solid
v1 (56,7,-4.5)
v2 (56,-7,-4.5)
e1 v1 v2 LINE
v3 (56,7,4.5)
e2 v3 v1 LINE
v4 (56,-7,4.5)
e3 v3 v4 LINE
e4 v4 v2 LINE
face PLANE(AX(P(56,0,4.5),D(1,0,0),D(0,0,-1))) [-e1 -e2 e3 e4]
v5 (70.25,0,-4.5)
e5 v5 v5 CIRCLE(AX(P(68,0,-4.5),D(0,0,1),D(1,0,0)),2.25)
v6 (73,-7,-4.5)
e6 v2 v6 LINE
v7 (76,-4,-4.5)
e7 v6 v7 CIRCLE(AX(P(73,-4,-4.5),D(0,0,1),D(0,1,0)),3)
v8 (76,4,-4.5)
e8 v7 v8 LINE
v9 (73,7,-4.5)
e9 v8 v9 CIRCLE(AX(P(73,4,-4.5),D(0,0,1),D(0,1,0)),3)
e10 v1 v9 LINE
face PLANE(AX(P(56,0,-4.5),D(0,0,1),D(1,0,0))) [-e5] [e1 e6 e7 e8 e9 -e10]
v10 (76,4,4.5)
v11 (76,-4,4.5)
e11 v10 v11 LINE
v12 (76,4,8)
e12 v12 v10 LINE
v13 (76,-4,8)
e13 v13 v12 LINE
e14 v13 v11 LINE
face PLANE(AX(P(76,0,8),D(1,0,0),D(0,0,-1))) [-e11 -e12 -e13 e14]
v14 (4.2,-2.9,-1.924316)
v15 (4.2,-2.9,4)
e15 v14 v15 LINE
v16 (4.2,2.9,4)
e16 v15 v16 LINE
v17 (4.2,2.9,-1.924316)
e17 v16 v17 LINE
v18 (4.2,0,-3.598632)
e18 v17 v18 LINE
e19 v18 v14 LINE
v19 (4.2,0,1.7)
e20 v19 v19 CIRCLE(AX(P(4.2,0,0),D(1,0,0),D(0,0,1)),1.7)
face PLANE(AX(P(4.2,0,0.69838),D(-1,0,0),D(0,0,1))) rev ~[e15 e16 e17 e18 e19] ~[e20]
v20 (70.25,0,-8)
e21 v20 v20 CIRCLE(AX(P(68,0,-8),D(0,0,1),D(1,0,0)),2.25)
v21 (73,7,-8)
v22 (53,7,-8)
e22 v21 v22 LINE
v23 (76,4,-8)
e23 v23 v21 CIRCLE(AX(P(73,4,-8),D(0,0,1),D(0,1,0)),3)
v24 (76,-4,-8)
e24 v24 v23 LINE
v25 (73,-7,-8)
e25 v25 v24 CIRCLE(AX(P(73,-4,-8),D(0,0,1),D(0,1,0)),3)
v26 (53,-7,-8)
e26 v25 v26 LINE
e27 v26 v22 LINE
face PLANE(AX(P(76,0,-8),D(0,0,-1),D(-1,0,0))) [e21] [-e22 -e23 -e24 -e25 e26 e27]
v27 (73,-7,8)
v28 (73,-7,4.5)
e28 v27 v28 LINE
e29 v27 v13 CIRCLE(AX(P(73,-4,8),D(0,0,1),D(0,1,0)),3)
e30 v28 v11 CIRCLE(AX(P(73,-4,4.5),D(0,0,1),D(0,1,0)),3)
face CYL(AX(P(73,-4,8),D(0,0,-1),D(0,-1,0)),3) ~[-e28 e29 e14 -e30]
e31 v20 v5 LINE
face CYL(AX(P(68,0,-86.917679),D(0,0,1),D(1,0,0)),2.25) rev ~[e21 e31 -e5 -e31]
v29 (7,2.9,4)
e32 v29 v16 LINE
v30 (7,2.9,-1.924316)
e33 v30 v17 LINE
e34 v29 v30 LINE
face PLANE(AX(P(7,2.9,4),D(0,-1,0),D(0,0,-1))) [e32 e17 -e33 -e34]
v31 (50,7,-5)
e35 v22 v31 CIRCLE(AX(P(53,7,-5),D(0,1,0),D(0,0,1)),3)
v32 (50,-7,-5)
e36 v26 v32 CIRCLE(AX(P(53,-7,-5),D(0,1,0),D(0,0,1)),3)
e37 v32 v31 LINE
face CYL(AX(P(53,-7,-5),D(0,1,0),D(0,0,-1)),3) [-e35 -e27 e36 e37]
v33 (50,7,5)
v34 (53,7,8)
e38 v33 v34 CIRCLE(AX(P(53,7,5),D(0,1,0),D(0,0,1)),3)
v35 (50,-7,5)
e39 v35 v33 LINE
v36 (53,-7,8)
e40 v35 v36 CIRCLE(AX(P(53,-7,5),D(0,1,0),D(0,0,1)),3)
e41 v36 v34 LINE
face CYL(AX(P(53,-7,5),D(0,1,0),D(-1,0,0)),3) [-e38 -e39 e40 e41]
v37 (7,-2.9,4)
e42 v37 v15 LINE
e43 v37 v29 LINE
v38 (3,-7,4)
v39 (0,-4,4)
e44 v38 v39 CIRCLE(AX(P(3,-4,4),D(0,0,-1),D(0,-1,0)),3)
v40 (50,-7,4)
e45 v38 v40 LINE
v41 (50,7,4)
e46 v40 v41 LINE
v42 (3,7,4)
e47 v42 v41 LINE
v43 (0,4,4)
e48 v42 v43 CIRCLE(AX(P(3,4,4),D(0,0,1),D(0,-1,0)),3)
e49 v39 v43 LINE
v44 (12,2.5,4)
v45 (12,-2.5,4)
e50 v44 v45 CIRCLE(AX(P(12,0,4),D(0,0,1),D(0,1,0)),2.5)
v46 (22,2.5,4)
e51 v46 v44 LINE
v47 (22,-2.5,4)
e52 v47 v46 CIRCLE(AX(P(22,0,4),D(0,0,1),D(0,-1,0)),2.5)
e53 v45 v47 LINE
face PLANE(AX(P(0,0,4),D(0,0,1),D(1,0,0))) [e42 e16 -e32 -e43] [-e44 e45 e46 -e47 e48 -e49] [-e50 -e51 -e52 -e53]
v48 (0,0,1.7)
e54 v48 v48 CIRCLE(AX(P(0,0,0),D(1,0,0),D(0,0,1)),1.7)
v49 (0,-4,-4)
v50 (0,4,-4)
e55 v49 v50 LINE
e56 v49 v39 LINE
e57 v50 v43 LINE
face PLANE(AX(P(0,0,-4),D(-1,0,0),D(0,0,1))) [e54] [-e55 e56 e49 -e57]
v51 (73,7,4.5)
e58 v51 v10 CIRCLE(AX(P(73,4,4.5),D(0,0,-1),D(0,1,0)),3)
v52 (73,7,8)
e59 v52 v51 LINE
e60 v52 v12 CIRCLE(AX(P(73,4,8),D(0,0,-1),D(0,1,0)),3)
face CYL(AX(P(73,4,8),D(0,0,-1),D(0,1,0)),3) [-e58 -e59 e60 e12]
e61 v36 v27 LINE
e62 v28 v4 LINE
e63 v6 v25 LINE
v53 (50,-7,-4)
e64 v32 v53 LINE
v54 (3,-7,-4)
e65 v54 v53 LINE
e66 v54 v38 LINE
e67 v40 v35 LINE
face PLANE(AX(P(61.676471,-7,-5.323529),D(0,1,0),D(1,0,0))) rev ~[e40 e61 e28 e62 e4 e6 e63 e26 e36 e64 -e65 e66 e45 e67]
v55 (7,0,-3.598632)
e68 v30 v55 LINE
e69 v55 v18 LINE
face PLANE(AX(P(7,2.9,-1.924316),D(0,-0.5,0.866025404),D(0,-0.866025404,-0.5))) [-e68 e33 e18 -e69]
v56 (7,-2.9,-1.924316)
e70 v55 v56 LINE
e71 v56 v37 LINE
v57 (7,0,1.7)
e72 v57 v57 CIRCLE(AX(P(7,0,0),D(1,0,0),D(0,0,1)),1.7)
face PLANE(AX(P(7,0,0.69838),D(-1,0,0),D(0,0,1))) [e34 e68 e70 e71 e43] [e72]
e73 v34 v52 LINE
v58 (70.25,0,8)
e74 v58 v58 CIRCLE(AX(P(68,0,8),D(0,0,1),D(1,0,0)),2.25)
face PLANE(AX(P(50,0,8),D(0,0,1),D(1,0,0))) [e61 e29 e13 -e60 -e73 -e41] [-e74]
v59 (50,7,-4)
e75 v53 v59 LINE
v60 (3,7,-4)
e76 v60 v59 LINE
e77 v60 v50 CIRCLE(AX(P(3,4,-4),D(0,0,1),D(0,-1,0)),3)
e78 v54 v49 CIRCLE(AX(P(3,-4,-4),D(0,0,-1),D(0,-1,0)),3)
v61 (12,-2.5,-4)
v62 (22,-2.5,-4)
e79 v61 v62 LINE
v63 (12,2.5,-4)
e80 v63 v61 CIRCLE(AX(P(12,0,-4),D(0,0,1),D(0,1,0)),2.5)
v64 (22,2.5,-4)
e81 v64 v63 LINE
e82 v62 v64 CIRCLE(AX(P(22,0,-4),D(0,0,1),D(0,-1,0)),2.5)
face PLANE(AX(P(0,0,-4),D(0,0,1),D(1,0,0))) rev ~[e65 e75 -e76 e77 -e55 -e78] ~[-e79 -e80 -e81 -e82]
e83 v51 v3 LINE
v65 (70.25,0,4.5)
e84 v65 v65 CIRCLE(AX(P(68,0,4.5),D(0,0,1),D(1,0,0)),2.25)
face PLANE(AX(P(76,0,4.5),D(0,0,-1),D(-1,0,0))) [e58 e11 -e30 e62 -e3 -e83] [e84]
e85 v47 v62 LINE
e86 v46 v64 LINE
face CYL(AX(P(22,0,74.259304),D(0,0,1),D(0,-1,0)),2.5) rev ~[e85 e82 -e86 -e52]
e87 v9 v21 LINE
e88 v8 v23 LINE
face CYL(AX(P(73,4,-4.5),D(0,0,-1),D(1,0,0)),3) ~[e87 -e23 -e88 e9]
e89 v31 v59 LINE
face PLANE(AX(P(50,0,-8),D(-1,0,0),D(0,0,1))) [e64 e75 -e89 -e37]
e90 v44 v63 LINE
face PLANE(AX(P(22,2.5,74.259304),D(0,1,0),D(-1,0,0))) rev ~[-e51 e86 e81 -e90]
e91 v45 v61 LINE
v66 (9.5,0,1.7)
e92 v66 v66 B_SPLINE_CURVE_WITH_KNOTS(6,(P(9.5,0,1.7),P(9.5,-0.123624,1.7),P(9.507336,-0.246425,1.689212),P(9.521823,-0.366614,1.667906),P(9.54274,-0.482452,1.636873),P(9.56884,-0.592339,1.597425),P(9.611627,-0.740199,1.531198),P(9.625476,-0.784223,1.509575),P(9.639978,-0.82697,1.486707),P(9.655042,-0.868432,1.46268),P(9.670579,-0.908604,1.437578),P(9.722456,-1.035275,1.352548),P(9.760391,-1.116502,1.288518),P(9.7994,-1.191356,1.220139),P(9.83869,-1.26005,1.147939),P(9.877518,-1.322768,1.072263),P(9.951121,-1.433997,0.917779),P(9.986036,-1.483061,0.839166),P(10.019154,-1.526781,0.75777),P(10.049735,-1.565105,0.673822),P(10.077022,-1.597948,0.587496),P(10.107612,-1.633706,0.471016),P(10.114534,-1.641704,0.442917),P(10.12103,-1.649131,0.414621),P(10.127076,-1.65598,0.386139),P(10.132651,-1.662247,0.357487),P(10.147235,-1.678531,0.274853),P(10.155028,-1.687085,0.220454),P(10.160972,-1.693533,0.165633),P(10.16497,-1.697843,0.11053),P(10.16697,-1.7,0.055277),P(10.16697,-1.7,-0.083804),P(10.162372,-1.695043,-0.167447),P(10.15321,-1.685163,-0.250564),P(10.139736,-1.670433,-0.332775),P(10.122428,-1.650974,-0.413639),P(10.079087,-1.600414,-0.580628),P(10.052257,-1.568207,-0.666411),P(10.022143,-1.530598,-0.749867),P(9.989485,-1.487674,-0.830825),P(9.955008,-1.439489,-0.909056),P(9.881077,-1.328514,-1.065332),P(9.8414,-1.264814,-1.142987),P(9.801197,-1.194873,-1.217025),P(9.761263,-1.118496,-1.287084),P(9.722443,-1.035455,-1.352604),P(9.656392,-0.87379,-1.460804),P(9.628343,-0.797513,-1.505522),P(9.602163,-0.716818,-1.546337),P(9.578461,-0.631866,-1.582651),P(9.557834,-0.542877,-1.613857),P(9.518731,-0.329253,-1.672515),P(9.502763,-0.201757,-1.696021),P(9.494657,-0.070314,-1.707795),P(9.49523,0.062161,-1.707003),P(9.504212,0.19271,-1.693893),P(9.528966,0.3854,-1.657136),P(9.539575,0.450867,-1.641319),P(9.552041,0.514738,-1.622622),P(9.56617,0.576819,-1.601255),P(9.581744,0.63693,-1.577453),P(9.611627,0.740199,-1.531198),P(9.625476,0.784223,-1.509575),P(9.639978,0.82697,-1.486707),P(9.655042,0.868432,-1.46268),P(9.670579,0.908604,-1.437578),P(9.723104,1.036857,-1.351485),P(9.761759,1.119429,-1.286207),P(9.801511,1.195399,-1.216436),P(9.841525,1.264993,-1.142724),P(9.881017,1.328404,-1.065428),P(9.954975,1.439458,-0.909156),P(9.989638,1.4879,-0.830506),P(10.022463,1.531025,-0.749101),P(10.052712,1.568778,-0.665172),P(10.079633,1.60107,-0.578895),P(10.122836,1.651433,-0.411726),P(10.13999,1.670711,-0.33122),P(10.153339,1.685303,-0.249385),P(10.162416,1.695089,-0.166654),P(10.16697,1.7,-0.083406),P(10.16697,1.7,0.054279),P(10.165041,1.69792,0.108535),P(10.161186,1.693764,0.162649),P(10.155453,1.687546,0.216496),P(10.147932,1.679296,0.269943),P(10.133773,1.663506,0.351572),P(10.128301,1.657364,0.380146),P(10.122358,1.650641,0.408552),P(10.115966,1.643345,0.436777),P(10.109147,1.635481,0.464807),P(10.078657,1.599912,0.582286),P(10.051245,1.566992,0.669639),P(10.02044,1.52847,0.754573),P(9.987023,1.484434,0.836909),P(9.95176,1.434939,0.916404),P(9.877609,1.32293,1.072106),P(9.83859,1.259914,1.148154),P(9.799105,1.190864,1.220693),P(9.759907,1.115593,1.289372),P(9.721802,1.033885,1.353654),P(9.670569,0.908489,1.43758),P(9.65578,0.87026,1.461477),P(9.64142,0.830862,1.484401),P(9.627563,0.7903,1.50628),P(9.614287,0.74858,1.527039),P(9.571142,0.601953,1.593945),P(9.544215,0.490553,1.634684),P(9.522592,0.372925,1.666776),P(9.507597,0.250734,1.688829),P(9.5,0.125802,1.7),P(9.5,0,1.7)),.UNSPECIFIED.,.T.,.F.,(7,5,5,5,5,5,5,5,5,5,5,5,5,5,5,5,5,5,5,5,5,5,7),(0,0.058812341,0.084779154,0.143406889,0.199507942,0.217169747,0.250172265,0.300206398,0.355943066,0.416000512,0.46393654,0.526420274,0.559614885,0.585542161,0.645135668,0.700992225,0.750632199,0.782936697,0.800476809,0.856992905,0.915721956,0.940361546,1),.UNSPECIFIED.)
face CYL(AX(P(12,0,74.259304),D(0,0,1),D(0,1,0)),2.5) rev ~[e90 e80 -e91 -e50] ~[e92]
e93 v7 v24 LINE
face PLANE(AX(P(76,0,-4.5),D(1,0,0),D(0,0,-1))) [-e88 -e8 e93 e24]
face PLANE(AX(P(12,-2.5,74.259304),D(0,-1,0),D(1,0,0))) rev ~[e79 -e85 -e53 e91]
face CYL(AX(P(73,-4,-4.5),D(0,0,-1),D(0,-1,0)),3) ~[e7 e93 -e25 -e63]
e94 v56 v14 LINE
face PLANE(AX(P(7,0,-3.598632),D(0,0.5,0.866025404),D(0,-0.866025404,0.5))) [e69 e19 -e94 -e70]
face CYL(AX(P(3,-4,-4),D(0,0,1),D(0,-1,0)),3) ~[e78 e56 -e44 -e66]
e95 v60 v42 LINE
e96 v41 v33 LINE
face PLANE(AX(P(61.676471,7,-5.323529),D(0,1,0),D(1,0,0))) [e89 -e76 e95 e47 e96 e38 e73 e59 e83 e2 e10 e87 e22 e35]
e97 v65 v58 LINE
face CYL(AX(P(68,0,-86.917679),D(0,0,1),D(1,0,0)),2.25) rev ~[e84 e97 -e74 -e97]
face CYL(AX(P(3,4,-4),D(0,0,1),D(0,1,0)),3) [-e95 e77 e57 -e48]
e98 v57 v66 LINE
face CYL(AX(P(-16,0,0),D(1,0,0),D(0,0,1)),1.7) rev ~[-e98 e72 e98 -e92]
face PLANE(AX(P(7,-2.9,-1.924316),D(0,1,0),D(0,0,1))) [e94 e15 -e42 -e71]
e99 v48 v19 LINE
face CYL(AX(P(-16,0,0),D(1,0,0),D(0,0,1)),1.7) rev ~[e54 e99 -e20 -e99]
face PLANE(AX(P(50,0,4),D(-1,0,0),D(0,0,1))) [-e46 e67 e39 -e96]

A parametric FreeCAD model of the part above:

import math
import FreeCAD as App
import Part
import Sketcher
from FreeCAD import Vector
Q = App.Units.Quantity


def edges_at(feature, points):
    """Names of the edges that pass closest to the given points."""
    edges = feature.Shape.Edges
    near = lambda p: min(range(len(edges)), key=lambda i: edges[i].distToShape(Part.Vertex(*p))[0])
    return sorted({f"Edge{near(p) + 1}" for p in points})


def add_polygon(sketch, points):
    """Adds a closed chain of lines whose ends are joined by coincident constraints."""
    first, n = sketch.GeometryCount, len(points)
    for a, b in zip(points, points[1:] + points[:1]):
        sketch.addGeometry(Part.LineSegment(App.Vector(*a, 0), App.Vector(*b, 0)), False)
    for i in range(n):
        sketch.addConstraint(Sketcher.Constraint("Coincident", first + i, 2, first + (i + 1) % n, 1))

doc = App.newDocument("Part")
body = doc.addObject("PartDesign::Body", "Body")

sketch1 = body.newObject("Sketcher::SketchObject", "Sketch")
sketch1.AttachmentSupport = (doc.getObject("XZ_Plane"), [""])
sketch1.MapMode = "FlatFace"
add_polygon(sketch1, [(56, -4.5), (76, -4.5), (76, -8), (50, -8), (50, -4), (0, -4), (0, 4), (50, 4), (50, 8), (76, 8), (76, 4.5), (56, 4.5)])
sketch1.addConstraint([
    Sketcher.Constraint("Horizontal", 0),
    Sketcher.Constraint("Vertical", 1),
    Sketcher.Constraint("Horizontal", 2),
    Sketcher.Constraint("Vertical", 3),
    Sketcher.Constraint("Horizontal", 4),
    Sketcher.Constraint("Vertical", 5),
    Sketcher.Constraint("Horizontal", 6),
    Sketcher.Constraint("Vertical", 7),
    Sketcher.Constraint("Horizontal", 8),
    Sketcher.Constraint("Vertical", 9),
    Sketcher.Constraint("Horizontal", 10),
    Sketcher.Constraint("Vertical", 11),
    Sketcher.Constraint("Symmetric", 4, 2, 5, 2, -1, 1),
    Sketcher.Constraint("Symmetric", 2, 2, 7, 2, -1),
    Sketcher.Constraint("Symmetric", 0, 2, 9, 2, -1),
    Sketcher.Constraint("DistanceX", 0, 1, 0, 2, Q("20 mm")),
    Sketcher.Constraint("DistanceX", 2, 2, 2, 1, Q("26 mm")),
    Sketcher.Constraint("DistanceX", 4, 2, 4, 1, Q("50 mm")),
    Sketcher.Constraint("DistanceY", 3, 1, 3, 2, Q("4 mm")),
    Sketcher.Constraint("DistanceY", 5, 1, 5, 2, Q("8 mm")),
    Sketcher.Constraint("DistanceY", 11, 2, 11, 1, Q("9 mm")),
])
pad1 = body.newObject("PartDesign::Pad", "Pad")
pad1.Profile = sketch1
pad1.Length = 14
pad1.Midplane = True

sketch2 = body.newObject("Sketcher::SketchObject", "Sketch001")
sketch2.AttachmentSupport = (doc.getObject("XY_Plane"), [""])
sketch2.MapMode = "FlatFace"
sketch2.AttachmentOffset = App.Placement(Vector(0, 0, -8), App.Rotation())
sketch2.addGeometry(Part.Circle(Vector(68, 0, 0), Vector(0, 0, 1), 2.2), False)
sketch2.addConstraint([
    Sketcher.Constraint("PointOnObject", 0, 3, -1),
    Sketcher.Constraint("Diameter", 0, Q("4.5 mm")),
    Sketcher.Constraint("DistanceX", -1, 1, 0, 3, Q("68 mm")),
])
doc.recompute()
hole = body.newObject("PartDesign::Hole", "Hole")
hole.Profile = sketch2
hole.ThreadType = "None"
hole.Diameter = 4.5
hole.DepthType = "ThroughAll"
hole.Reversed = True

sketch3 = body.newObject("Sketcher::SketchObject", "Sketch002")
sketch3.AttachmentSupport = (doc.getObject("XY_Plane"), [""])
sketch3.MapMode = "FlatFace"
sketch3.AttachmentOffset = App.Placement(Vector(0, 0, -4), App.Rotation())
sketch3.addGeometry([
    Part.LineSegment(Vector(22, -2.5, 0), Vector(12, -2.5, 0)),
    Part.ArcOfCircle(Part.Circle(Vector(12, 0, 0), Vector(0, 0, 1), 2.5), math.radians(90), math.radians(270)),
    Part.LineSegment(Vector(12, 2.5, 0), Vector(22, 2.5, 0)),
    Part.ArcOfCircle(Part.Circle(Vector(22, 0, 0), Vector(0, 0, 1), 2.5), math.radians(-90), math.radians(90)),
], False)
sketch3.addConstraint([
    Sketcher.Constraint("Tangent", 0, 2, 1, 2),
    Sketcher.Constraint("Tangent", 1, 1, 2, 1),
    Sketcher.Constraint("Tangent", 2, 2, 3, 2),
    Sketcher.Constraint("Tangent", 3, 1, 0, 1),
    Sketcher.Constraint("Horizontal", 0),
    Sketcher.Constraint("Horizontal", 2),
    Sketcher.Constraint("PointOnObject", 1, 3, -1),
    Sketcher.Constraint("Radius", 1, Q("2.5 mm")),
    Sketcher.Constraint("DistanceX", 0, 2, 0, 1, Q("10 mm")),
    Sketcher.Constraint("DistanceX", -1, 1, 1, 3, Q("12 mm")),
])
pocket1 = body.newObject("PartDesign::Pocket", "Pocket")
pocket1.Profile = sketch3
pocket1.Type = "ThroughAll"
pocket1.Midplane = True

sketch4 = body.newObject("Sketcher::SketchObject", "Sketch003")
sketch4.AttachmentSupport = (doc.getObject("YZ_Plane"), [""])
sketch4.MapMode = "FlatFace"
sketch4.AttachmentOffset = App.Placement(Vector(0, 0, 7), App.Rotation())
add_polygon(sketch4, [(2.9, 4), (2.9, -1.9), (0, -3.6), (-2.9, -1.9), (-2.9, 4)])
sketch4.addConstraint([
    Sketcher.Constraint("Vertical", 0),
    Sketcher.Constraint("Vertical", 3),
    Sketcher.Constraint("Horizontal", 4),
    Sketcher.Constraint("Symmetric", 0, 2, 2, 2, -2),
    Sketcher.Constraint("PointOnObject", 1, 2, -2),
    Sketcher.Constraint("Angle", 1, Q("-150 deg")),
    Sketcher.Constraint("DistanceX", 4, 1, 4, 2, Q("5.8 mm")),
    Sketcher.Constraint("DistanceY", -1, 1, 3, 2, Q("4 mm")),
    Sketcher.Constraint("DistanceY", 0, 2, 0, 1, Q("5.924316 mm")),
])
pocket2 = body.newObject("PartDesign::Pocket", "Pocket001")
pocket2.Profile = sketch4
pocket2.Length = 2.8

sketch5 = body.newObject("Sketcher::SketchObject", "Sketch004")
sketch5.AttachmentSupport = (doc.getObject("YZ_Plane"), [""])
sketch5.MapMode = "FlatFace"
sketch5.addGeometry(Part.Circle(Vector(0, 0, 0), Vector(0, 0, 1), 1.7), False)
sketch5.addConstraint([
    Sketcher.Constraint("Coincident", 0, 3, -1, 1),
    Sketcher.Constraint("Diameter", 0, Q("3.4 mm")),
])
doc.recompute()
hole2 = body.newObject("PartDesign::Hole", "Hole001")
hole2.Profile = sketch5
hole2.ThreadType = "None"
hole2.Diameter = 3.4
hole2.DepthType = "Dimension"
hole2.Depth = 16
hole2.DrillPoint = "Angled"
hole2.DrillPointAngle = 118
hole2.Reversed = True
doc.recompute()

fillet = body.newObject("PartDesign::Fillet", "Fillet")
fillet.Base = (hole2, edges_at(hole2, [
    (0, 7, 0),
    (76, -7, -6.25),
    (76, -7, 6.25),
    (0, -7, 0),
    (50, 0, -8),
    (50, 0, 8),
    (76, 7, 6.25),
    (76, 7, -6.25),
]))
fillet.Radius = 3

doc.recompute()
